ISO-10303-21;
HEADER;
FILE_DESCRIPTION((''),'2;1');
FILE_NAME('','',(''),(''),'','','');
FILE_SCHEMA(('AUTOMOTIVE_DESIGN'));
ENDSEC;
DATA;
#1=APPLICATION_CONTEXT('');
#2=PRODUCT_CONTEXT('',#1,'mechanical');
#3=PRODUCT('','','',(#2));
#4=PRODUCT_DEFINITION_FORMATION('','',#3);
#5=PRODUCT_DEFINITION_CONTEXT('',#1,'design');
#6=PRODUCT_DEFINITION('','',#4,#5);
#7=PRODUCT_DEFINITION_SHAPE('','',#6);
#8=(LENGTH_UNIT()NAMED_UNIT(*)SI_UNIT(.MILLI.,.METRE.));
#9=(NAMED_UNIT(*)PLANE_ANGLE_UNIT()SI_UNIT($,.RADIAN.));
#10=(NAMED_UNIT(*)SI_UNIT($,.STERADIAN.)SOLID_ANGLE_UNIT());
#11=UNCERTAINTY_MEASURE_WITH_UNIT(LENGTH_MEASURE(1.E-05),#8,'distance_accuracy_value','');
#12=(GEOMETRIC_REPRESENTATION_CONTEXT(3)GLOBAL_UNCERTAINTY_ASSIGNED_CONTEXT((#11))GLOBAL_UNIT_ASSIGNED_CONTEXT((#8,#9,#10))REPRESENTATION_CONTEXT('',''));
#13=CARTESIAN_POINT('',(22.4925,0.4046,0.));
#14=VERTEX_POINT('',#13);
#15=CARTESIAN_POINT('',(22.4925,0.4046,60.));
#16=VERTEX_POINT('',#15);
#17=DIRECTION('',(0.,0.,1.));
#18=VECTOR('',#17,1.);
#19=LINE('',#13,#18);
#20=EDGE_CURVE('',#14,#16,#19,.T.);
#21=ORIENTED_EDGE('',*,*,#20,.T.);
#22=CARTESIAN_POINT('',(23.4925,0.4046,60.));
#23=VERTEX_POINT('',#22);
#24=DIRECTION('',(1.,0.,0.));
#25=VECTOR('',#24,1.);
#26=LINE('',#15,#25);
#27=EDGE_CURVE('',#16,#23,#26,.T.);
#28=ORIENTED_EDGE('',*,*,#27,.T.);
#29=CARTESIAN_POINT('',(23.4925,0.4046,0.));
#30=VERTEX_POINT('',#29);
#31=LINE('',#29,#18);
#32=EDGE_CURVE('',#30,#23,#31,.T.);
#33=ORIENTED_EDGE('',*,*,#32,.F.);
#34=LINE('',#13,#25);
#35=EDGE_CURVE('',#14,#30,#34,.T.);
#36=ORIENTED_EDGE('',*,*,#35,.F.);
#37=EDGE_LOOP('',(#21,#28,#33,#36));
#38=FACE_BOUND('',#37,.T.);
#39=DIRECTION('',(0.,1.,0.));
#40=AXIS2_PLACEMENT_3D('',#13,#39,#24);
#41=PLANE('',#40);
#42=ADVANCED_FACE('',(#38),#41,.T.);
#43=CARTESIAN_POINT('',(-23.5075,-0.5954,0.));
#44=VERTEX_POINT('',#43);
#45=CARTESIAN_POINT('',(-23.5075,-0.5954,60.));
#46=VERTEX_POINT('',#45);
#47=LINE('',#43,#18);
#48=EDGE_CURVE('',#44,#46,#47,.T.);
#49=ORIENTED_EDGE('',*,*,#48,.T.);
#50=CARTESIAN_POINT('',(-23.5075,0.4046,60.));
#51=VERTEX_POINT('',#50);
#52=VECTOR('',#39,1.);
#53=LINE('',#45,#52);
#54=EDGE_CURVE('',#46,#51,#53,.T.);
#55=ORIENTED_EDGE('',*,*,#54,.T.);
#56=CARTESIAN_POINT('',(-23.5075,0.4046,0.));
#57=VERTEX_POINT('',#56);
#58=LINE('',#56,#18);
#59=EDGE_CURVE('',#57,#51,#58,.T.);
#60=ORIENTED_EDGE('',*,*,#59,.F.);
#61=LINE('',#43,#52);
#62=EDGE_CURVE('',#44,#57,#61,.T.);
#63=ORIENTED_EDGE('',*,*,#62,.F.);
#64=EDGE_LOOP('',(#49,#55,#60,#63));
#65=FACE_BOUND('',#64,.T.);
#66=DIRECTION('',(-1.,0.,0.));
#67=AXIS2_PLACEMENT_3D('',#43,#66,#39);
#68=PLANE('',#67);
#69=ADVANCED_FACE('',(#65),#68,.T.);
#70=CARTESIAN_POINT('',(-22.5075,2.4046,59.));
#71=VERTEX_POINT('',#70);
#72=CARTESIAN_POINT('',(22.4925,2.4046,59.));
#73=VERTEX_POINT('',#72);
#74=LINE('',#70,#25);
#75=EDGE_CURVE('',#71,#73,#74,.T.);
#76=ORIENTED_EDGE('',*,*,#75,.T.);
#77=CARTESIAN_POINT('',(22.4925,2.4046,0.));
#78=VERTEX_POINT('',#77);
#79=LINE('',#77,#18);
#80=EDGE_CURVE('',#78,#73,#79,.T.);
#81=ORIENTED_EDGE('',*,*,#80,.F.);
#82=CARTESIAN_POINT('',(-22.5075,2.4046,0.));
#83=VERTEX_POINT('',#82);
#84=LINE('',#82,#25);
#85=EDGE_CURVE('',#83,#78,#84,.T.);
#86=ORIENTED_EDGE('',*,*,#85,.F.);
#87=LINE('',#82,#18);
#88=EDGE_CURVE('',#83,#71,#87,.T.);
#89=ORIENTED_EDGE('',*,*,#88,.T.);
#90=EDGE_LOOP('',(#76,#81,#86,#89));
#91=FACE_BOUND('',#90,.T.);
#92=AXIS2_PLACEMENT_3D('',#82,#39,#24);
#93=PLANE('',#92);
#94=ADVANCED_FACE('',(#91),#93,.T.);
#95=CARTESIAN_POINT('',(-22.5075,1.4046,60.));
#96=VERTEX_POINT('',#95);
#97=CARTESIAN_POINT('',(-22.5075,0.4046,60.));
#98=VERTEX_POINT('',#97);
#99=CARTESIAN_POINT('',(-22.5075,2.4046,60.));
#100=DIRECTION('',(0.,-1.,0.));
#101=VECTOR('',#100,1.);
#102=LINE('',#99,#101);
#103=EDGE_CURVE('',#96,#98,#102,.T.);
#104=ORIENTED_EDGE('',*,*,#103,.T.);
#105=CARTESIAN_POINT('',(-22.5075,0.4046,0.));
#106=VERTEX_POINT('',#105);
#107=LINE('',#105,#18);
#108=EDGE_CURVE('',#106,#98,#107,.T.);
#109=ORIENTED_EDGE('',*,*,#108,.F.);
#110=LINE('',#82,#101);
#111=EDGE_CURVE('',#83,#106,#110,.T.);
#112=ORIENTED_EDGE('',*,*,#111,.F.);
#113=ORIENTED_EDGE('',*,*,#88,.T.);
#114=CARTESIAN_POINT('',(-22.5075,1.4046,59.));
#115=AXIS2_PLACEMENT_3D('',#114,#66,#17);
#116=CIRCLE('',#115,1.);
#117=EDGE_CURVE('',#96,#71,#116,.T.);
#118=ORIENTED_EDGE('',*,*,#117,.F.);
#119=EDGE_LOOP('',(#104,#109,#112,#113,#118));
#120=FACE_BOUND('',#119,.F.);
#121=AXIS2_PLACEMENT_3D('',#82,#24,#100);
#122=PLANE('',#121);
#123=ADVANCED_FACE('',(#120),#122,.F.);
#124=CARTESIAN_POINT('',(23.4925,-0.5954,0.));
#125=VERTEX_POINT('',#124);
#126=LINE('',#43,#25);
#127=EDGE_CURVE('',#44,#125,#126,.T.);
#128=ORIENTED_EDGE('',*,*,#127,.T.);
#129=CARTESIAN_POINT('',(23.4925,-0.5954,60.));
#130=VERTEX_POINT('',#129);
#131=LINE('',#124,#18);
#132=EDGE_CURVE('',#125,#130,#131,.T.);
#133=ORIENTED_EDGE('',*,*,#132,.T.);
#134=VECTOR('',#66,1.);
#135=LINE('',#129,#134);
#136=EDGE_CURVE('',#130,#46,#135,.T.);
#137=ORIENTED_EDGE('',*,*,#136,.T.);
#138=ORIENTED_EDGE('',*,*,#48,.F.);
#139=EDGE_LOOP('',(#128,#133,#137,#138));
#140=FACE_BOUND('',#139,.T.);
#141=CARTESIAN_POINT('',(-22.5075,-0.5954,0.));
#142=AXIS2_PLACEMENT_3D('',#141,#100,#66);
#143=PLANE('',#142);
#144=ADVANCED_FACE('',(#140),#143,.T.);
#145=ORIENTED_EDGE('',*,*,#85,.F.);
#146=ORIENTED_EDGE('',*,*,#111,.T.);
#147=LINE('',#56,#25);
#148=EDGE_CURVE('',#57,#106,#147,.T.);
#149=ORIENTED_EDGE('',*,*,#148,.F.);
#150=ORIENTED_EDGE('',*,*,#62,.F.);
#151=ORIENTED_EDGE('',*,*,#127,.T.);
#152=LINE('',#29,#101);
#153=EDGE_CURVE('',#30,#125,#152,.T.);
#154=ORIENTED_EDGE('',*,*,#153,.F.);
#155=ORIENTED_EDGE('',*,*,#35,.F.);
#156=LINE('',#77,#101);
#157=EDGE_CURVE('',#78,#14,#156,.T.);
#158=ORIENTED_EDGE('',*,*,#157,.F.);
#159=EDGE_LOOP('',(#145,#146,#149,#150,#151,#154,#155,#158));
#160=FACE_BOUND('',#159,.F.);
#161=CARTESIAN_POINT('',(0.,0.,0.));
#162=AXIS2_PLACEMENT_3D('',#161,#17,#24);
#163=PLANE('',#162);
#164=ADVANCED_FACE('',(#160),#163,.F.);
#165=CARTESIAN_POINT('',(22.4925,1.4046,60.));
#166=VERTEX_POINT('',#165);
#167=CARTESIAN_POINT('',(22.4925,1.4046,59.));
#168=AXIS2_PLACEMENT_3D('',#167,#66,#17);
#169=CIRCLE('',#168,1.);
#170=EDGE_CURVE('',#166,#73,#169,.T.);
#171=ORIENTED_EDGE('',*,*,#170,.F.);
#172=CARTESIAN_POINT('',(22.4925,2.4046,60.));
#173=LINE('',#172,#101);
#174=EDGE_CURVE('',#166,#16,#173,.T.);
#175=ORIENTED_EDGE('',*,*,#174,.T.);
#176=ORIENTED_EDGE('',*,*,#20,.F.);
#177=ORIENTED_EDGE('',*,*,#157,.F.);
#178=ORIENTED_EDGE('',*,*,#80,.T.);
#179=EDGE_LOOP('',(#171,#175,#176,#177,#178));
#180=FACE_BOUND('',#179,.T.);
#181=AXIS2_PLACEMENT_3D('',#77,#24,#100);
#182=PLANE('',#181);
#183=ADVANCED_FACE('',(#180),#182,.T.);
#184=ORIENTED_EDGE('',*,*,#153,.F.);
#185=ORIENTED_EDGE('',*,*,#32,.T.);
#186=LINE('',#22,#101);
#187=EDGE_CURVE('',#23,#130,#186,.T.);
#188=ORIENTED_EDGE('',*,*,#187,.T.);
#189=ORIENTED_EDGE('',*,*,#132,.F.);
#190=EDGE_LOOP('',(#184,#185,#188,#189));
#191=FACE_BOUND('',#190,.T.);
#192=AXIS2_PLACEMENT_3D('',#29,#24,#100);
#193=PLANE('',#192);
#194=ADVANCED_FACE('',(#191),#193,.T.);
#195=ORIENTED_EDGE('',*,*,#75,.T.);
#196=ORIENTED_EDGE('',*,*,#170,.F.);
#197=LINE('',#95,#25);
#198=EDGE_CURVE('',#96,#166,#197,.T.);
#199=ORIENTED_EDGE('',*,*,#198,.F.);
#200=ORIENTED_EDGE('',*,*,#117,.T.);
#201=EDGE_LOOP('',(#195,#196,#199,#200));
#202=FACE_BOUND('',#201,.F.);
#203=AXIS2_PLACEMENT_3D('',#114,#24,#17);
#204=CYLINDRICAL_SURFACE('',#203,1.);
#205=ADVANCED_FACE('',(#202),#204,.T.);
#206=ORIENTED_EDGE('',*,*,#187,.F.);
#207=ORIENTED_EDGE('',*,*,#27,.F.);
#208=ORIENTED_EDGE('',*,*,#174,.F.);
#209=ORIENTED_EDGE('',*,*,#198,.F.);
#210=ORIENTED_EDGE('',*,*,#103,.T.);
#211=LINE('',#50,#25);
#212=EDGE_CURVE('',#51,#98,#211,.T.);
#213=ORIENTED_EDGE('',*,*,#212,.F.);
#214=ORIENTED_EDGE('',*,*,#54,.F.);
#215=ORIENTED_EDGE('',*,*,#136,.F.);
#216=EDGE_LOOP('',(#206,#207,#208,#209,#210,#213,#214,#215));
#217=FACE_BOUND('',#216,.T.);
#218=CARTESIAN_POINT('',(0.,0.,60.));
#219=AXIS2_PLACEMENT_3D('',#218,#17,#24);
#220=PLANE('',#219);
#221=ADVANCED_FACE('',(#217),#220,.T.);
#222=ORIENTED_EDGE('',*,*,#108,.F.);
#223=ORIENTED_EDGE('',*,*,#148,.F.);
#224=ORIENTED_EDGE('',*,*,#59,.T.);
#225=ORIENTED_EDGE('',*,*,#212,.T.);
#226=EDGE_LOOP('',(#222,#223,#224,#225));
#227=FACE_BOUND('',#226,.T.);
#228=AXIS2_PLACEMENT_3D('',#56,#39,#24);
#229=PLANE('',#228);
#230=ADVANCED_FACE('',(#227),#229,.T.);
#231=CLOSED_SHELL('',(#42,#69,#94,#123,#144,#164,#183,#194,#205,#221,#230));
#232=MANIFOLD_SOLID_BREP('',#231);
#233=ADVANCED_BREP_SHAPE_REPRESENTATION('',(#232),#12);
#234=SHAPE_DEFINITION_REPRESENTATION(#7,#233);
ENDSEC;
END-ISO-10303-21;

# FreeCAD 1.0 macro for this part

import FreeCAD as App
import Part
import Sketcher
from FreeCAD import Vector
Q = App.Units.Quantity


def edges_at(feature, points):
    """Names of the edges that pass closest to the given points."""
    edges = feature.Shape.Edges
    near = lambda p: min(range(len(edges)), key=lambda i: edges[i].distToShape(Part.Vertex(*p))[0])
    return sorted({f"Edge{near(p) + 1}" for p in points})

doc = App.newDocument("Part")
body = doc.addObject("PartDesign::Body", "Body")

# Sketch on XY plane
sketch1 = doc.addObject("Sketcher::SketchObject", "Sketch")
body.addObject(sketch1)
sketch1.AttachmentSupport = (doc.XY_Plane, [""])
sketch1.MapMode = "FlatFace"
sketch1.addGeometry(Part.LineSegment(Vector(-23.5, -0.6, 0), Vector(23.5, -0.6, 0)), False)
sketch1.addGeometry(Part.LineSegment(Vector(23.5, -0.6, 0), Vector(23.5, 0.4, 0)), False)
sketch1.addGeometry(Part.LineSegment(Vector(23.5, 0.4, 0), Vector(22.5, 0.4, 0)), False)
sketch1.addGeometry(Part.LineSegment(Vector(22.5, 0.4, 0), Vector(22.5, 2.4, 0)), False)
sketch1.addGeometry(Part.LineSegment(Vector(22.5, 2.4, 0), Vector(-22.5, 2.4, 0)), False)
sketch1.addGeometry(Part.LineSegment(Vector(-22.5, 2.4, 0), Vector(-22.5, 0.4, 0)), False)
sketch1.addGeometry(Part.LineSegment(Vector(-22.5, 0.4, 0), Vector(-23.5, 0.4, 0)), False)
sketch1.addGeometry(Part.LineSegment(Vector(-23.5, 0.4, 0), Vector(-23.5, -0.6, 0)), False)
sketch1.addConstraint(Sketcher.Constraint("Coincident", 0, 2, 1, 1))
sketch1.addConstraint(Sketcher.Constraint("Coincident", 1, 2, 2, 1))
sketch1.addConstraint(Sketcher.Constraint("Coincident", 2, 2, 3, 1))
sketch1.addConstraint(Sketcher.Constraint("Coincident", 3, 2, 4, 1))
sketch1.addConstraint(Sketcher.Constraint("Coincident", 4, 2, 5, 1))
sketch1.addConstraint(Sketcher.Constraint("Coincident", 5, 2, 6, 1))
sketch1.addConstraint(Sketcher.Constraint("Coincident", 6, 2, 7, 1))
sketch1.addConstraint(Sketcher.Constraint("Coincident", 7, 2, 0, 1))
sketch1.addConstraint(Sketcher.Constraint("Horizontal", 0))
sketch1.addConstraint(Sketcher.Constraint("Vertical", 1))
sketch1.addConstraint(Sketcher.Constraint("Horizontal", 2))
sketch1.addConstraint(Sketcher.Constraint("Vertical", 3))
sketch1.addConstraint(Sketcher.Constraint("Horizontal", 4))
sketch1.addConstraint(Sketcher.Constraint("Vertical", 5))
sketch1.addConstraint(Sketcher.Constraint("Horizontal", 6))
sketch1.addConstraint(Sketcher.Constraint("Vertical", 7))
sketch1.addConstraint(Sketcher.Constraint("Horizontal", 2, 2, 5, 2))
sketch1.addConstraint(Sketcher.Constraint("Equal", 2, 6))
sketch1.addConstraint(Sketcher.Constraint("Equal", 6, 1))
sketch1.addConstraint(Sketcher.Constraint("DistanceX", 2, 2, 2, 1, Q("1 mm")))
sketch1.addConstraint(Sketcher.Constraint("DistanceY", 3, 1, 3, 2, Q("2 mm")))
sketch1.addConstraint(Sketcher.Constraint("DistanceX", 0, 1, 0, 2, Q("47 mm")))
sketch1.addConstraint(Sketcher.Constraint("DistanceX", -1, 1, 0, 2, Q("23.4925 mm")))
sketch1.addConstraint(Sketcher.Constraint("DistanceY", 0, 2, -1, 1, Q("0.5954 mm")))
pad1 = doc.addObject("PartDesign::Pad", "Pad")
body.addObject(pad1)
pad1.Profile = sketch1
pad1.Length = 60
doc.recompute()

fillet = doc.addObject("PartDesign::Fillet", "Fillet")
body.addObject(fillet)
fillet.Base = (pad1, edges_at(pad1, [(-0.007, 2.405, 60)]))
fillet.Radius = 1

doc.recompute()
